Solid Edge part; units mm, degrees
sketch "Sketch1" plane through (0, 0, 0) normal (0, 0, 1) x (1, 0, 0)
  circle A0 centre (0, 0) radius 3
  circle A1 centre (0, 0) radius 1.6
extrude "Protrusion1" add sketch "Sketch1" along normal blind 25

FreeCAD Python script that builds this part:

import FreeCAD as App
import Part
import Sketcher

doc = App.newDocument("Part")
body = doc.addObject("PartDesign::Body", "Body")

# Sketch on XY plane
sketch1 = body.newObject("Sketcher::SketchObject", "Sketch")
sketch1.AttachmentSupport = (doc.getObject("XY_Plane"), [""])
sketch1.MapMode = "FlatFace"
sketch1.addGeometry(Part.Circle(App.Vector(0, 0, 0), App.Vector(0, 0, 1), 3), False)
sketch1.addGeometry(Part.Circle(App.Vector(0, 0, 0), App.Vector(0, 0, 1), 1.6), False)
sketch1.addConstraint(Sketcher.Constraint("Coincident", 0, 3, -1, 1))
sketch1.addConstraint(Sketcher.Constraint("Coincident", 1, 3, -1, 1))
sketch1.addConstraint(Sketcher.Constraint("Diameter", 0, 6.0))
sketch1.addConstraint(Sketcher.Constraint("Diameter", 1, 3.2))
pad1 = body.newObject("PartDesign::Pad", "Pad")
pad1.Profile = sketch1
pad1.Length = 25

doc.recompute()
